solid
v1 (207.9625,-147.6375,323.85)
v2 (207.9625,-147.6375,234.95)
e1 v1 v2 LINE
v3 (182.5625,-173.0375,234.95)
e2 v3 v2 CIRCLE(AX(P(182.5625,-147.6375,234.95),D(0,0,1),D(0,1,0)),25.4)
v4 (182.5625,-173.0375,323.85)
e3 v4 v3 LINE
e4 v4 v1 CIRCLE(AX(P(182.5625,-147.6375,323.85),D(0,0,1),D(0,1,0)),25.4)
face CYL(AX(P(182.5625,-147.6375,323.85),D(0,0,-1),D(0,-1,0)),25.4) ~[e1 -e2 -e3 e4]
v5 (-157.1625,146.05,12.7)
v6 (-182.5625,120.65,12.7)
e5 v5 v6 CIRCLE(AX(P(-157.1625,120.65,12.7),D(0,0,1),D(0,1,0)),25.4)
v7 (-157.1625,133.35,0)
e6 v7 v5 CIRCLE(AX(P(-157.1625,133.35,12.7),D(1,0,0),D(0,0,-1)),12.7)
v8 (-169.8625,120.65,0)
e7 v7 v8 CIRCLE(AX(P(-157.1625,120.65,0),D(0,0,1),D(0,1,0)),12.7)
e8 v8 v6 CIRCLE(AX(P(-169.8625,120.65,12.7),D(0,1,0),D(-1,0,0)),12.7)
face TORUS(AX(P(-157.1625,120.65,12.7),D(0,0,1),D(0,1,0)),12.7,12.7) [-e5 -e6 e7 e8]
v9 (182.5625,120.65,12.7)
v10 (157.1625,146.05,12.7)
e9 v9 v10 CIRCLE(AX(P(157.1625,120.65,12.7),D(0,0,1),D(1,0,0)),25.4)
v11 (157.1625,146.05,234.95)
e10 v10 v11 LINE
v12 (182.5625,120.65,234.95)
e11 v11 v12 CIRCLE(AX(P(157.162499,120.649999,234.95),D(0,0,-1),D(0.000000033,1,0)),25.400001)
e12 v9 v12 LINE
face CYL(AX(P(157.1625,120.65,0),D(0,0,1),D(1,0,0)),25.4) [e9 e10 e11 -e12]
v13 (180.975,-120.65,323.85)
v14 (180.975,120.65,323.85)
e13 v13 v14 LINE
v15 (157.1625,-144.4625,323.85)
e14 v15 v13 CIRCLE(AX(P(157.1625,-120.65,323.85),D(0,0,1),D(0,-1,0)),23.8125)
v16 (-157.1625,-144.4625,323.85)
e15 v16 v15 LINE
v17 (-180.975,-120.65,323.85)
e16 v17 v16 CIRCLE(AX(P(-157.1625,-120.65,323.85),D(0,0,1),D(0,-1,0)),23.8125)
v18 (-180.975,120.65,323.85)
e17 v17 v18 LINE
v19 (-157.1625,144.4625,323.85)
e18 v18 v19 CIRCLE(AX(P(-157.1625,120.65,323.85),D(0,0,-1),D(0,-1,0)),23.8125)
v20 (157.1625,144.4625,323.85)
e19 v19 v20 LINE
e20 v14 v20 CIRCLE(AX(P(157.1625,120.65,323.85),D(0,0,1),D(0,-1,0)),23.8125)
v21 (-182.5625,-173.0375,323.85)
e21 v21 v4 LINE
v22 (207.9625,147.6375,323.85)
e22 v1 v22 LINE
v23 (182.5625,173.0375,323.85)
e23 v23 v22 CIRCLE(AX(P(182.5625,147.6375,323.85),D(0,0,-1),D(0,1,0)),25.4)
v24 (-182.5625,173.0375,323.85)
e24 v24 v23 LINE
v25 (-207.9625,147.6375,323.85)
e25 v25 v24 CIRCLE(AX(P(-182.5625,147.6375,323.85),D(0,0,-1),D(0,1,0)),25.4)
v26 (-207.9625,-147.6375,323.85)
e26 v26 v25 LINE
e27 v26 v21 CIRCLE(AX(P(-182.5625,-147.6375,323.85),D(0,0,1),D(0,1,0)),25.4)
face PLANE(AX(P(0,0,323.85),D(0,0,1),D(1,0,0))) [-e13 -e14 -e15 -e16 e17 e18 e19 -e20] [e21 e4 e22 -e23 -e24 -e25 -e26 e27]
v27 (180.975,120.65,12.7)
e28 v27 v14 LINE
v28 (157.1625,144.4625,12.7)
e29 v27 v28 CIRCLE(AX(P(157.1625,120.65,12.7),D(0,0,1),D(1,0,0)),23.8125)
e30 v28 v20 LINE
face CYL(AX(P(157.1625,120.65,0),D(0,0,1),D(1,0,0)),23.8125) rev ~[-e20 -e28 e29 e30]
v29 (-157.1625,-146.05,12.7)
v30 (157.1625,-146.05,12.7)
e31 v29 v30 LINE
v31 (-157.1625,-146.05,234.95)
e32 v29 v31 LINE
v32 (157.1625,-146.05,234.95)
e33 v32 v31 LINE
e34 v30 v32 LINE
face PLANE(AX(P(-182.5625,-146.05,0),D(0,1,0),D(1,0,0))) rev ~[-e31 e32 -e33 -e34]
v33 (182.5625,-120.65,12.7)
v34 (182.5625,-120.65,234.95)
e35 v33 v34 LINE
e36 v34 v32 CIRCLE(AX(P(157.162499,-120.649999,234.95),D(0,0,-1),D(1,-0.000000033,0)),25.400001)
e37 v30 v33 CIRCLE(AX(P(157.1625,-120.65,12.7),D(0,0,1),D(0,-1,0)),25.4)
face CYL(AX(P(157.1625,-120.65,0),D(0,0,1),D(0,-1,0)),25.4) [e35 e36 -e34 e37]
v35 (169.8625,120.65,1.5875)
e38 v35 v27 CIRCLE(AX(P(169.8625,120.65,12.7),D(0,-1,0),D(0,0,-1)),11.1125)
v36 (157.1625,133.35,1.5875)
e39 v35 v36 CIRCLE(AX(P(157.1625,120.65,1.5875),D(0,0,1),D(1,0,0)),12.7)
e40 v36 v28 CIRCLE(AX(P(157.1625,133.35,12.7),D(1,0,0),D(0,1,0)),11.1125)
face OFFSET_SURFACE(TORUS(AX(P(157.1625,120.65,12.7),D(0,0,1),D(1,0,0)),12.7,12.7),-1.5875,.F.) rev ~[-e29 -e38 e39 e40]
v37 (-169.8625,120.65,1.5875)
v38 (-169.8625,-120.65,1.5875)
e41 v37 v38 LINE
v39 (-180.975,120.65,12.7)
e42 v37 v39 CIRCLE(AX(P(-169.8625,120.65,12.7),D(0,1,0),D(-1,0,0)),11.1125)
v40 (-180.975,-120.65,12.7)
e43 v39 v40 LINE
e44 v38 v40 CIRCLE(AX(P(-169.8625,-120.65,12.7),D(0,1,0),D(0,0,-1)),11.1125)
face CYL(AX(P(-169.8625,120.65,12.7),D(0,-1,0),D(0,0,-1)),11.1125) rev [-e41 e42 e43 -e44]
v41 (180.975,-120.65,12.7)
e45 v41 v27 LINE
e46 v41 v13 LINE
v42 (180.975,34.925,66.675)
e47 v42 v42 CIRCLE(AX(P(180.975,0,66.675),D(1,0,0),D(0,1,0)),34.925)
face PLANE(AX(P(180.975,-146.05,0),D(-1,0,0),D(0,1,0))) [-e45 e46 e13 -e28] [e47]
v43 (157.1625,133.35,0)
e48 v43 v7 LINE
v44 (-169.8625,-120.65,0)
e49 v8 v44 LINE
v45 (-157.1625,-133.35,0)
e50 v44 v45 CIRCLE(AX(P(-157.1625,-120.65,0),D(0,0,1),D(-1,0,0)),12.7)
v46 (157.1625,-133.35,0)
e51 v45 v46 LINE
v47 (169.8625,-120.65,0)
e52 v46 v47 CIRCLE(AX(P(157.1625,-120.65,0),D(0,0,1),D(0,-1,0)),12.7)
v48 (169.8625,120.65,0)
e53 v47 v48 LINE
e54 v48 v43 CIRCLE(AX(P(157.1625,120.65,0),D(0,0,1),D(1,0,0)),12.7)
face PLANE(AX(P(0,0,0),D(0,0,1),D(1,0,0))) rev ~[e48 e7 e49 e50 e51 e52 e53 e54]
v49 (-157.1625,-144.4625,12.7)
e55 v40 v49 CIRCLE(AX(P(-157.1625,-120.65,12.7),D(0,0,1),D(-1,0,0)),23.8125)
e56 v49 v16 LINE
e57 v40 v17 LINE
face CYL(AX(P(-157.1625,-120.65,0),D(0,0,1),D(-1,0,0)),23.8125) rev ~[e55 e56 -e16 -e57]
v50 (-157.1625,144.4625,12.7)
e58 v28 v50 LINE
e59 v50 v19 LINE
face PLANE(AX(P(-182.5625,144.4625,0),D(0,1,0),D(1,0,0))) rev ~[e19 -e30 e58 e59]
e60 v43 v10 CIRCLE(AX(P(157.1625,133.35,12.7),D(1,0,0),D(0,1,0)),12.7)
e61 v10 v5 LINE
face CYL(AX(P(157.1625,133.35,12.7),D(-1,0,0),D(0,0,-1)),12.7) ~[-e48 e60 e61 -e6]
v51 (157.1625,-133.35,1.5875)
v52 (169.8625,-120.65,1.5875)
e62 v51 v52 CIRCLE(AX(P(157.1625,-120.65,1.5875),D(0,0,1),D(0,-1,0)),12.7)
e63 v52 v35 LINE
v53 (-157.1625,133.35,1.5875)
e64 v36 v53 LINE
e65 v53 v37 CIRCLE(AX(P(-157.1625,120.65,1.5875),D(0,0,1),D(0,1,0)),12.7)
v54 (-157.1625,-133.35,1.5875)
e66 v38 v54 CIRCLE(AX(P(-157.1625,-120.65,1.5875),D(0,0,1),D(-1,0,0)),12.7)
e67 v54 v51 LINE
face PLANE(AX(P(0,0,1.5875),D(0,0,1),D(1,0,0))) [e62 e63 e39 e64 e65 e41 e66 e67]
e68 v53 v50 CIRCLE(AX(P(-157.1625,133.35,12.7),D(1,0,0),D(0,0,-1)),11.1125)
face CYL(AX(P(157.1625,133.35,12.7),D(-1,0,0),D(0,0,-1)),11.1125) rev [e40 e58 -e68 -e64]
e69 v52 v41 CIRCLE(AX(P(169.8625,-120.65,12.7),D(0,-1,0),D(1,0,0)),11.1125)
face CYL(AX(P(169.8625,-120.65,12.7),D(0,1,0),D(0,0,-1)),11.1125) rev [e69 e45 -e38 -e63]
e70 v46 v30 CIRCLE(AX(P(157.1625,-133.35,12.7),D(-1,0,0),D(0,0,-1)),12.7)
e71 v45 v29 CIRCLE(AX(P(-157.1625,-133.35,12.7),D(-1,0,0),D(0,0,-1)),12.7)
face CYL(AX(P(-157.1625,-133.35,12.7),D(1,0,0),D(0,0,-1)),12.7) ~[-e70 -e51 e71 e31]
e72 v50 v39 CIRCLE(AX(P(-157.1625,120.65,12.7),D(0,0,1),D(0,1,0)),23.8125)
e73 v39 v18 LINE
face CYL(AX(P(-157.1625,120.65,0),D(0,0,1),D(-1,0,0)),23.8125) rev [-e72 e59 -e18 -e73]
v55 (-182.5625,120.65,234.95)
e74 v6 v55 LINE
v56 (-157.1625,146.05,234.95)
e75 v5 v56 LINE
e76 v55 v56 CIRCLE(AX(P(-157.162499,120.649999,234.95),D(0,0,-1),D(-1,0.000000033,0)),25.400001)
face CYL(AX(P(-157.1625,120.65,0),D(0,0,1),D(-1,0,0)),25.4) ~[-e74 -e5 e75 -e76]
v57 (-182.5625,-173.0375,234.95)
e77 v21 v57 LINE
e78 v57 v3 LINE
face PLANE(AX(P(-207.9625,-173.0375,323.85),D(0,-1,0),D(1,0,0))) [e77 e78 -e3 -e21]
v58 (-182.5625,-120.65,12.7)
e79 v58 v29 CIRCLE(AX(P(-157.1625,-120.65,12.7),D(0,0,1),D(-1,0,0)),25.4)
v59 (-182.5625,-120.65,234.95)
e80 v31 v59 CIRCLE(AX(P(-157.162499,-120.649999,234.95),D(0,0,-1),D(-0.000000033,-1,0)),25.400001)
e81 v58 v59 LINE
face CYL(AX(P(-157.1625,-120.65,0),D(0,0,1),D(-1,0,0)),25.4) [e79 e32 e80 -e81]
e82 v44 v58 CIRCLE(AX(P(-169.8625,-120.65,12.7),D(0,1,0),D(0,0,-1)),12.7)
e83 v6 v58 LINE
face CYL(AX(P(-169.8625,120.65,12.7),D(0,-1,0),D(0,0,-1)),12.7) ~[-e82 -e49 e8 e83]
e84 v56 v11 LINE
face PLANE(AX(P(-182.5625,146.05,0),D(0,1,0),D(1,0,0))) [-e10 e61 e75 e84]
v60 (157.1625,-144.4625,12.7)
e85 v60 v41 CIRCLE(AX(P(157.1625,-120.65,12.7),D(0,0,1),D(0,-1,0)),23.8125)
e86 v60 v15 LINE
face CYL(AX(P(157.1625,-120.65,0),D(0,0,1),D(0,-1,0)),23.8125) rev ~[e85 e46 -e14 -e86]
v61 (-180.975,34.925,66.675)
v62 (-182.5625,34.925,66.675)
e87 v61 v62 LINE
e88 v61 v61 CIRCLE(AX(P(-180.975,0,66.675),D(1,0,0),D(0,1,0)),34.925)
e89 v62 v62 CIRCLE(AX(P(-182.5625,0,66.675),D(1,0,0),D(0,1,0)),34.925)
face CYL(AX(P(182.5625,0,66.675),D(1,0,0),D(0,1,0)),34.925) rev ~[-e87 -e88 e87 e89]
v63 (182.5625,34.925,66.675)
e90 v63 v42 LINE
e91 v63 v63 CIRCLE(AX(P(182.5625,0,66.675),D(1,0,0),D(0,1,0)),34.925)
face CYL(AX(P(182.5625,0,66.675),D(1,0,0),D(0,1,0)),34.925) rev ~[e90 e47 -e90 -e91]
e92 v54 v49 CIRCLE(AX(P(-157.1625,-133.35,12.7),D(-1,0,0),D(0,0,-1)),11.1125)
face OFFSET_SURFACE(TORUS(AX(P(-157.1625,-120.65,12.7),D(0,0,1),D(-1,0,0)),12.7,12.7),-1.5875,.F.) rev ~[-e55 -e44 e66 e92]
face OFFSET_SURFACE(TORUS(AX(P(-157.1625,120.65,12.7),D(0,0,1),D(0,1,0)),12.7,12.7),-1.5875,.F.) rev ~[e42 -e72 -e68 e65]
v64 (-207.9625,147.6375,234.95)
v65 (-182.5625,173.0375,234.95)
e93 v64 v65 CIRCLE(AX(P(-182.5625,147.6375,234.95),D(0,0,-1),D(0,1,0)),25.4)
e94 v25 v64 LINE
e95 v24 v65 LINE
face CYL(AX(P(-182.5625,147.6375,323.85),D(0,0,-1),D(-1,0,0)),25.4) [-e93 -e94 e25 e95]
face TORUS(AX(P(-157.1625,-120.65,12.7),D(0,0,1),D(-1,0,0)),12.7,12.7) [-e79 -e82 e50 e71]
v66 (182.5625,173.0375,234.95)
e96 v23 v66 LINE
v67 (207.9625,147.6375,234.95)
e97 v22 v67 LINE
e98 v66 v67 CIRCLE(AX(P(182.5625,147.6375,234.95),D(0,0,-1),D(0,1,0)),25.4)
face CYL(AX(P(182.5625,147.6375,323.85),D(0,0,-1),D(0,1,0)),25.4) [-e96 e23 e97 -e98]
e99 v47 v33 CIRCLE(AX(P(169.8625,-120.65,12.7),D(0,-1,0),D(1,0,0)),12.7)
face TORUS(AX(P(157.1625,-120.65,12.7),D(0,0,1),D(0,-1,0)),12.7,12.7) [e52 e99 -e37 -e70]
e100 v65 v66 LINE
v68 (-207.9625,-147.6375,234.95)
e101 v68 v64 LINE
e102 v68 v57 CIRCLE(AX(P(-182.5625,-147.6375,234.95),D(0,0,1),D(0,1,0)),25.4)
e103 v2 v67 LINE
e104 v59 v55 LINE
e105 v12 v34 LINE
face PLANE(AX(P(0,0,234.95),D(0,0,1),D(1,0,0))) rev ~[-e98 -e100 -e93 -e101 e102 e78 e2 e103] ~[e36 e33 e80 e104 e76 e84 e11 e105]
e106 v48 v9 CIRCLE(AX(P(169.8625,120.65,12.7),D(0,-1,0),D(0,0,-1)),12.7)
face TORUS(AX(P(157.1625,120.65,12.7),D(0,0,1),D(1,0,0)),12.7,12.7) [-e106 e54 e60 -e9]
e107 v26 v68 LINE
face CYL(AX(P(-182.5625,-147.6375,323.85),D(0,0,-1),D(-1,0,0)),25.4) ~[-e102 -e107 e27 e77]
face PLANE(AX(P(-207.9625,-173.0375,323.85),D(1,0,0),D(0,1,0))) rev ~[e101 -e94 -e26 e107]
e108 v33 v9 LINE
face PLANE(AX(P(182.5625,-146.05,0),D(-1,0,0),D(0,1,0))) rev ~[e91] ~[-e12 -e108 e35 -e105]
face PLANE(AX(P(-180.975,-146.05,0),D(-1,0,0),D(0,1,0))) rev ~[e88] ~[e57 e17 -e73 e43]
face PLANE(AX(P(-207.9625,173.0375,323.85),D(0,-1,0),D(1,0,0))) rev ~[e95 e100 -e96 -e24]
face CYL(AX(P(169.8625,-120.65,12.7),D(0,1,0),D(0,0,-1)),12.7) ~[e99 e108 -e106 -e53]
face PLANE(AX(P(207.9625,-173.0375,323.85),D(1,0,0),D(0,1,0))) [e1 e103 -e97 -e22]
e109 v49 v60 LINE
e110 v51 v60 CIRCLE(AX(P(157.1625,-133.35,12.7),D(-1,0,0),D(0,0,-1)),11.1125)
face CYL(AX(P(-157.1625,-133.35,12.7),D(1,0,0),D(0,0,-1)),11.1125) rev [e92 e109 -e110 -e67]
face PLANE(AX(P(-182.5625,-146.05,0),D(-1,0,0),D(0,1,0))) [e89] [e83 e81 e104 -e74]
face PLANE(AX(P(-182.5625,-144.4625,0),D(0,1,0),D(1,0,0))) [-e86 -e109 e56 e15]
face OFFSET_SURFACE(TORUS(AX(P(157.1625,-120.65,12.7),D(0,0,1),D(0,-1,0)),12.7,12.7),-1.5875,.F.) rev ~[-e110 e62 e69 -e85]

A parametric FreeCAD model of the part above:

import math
import FreeCAD as App
import Part
import Sketcher
from FreeCAD import Vector
Q = App.Units.Quantity


def edges_at(feature, points):
    """Names of the edges that pass closest to the given points."""
    edges = feature.Shape.Edges
    near = lambda p: min(range(len(edges)), key=lambda i: edges[i].distToShape(Part.Vertex(*p))[0])
    return sorted({f"Edge{near(p) + 1}" for p in points})


def faces_at(feature, points):
    """Names of the faces that lie closest to the given points."""
    faces = feature.Shape.Faces
    near = lambda p: min(range(len(faces)), key=lambda i: faces[i].distToShape(Part.Vertex(*p))[0])
    return sorted({f"Face{near(p) + 1}" for p in points})


def add_polygon(sketch, points):
    """Adds a closed chain of lines whose ends are joined by coincident constraints."""
    first, n = sketch.GeometryCount, len(points)
    for a, b in zip(points, points[1:] + points[:1]):
        sketch.addGeometry(Part.LineSegment(App.Vector(*a, 0), App.Vector(*b, 0)), False)
    for i in range(n):
        sketch.addConstraint(Sketcher.Constraint("Coincident", first + i, 2, first + (i + 1) % n, 1))

doc = App.newDocument("Part")
body = doc.addObject("PartDesign::Body", "Body")

# Sketch on XY plane
sketch1 = body.newObject("Sketcher::SketchObject", "Sketch")
sketch1.AttachmentSupport = (doc.getObject("XY_Plane"), [""])
sketch1.MapMode = "FlatFace"
add_polygon(sketch1, [(-183, 146), (-183, -146), (183, -146), (183, 146)])  # lines 0-3
sketch1.addConstraint([
    Sketcher.Constraint("Vertical", 0),
    Sketcher.Constraint("Horizontal", 1),
    Sketcher.Constraint("Vertical", 2),
    Sketcher.Constraint("Horizontal", 3),
    Sketcher.Constraint("Symmetric", 0, 2, 2, 2, -1, 1),
    Sketcher.Constraint("DistanceY", 0, 2, 0, 1, Q("11.5 in")),
    Sketcher.Constraint("DistanceX", 1, 1, 1, 2, Q("14.375 in")),
])
pad1 = body.newObject("PartDesign::Pad", "Pad")
pad1.Profile = sketch1
pad1.Length = Q("12.75 in")
doc.recompute()

fillet = body.newObject("PartDesign::Fillet", "Fillet")
fillet.Base = (pad1, edges_at(pad1, [
    (-182.562, -146.05, 161.925),
    (182.562, -146.05, 161.925),
    (182.562, 146.05, 161.925),
    (-182.562, 146.05, 161.925),
]))
fillet.Radius = Q("1 in")
doc.recompute()

fillet2 = body.newObject("PartDesign::Fillet", "Fillet001")
fillet2.Base = (fillet, edges_at(fillet, [(0, -146.05, 0)]))
fillet2.Radius = Q("0.5 in")
doc.recompute()

thickness = body.newObject("PartDesign::Thickness", "Thickness")
thickness.Base = (fillet2, faces_at(fillet2, [(0, 0, 323.85)]))
thickness.Value = Q("0.0625 in")
thickness.Reversed = True
thickness.Join = "Arc"

# Sketch on YZ plane
sketch2 = body.newObject("Sketcher::SketchObject", "Sketch001")
sketch2.AttachmentSupport = (doc.getObject("YZ_Plane"), [""])
sketch2.MapMode = "FlatFace"
sketch2.AttachmentOffset = App.Placement(Vector(0, 0, 7.1875 * 25.4), App.Rotation())
sketch2.addGeometry(Part.Circle(Vector(0, 67, 0), Vector(0, 0, 1), 35), False)
sketch2.addConstraint([
    Sketcher.Constraint("PointOnObject", 0, 3, -2),
    Sketcher.Constraint("Diameter", 0, Q("2.75 in")),
    Sketcher.Constraint("DistanceY", -1, 1, 0, 3, Q("2.625 in")),
])
pocket1 = body.newObject("PartDesign::Pocket", "Pocket")
pocket1.Profile = sketch2
pocket1.Type = "ThroughAll"

# Sketch on XY plane
sketch3 = body.newObject("Sketcher::SketchObject", "Sketch002")
sketch3.AttachmentSupport = (doc.getObject("XY_Plane"), [""])
sketch3.MapMode = "FlatFace"
sketch3.AttachmentOffset = App.Placement(Vector(0, 0, 12.75 * 25.4), App.Rotation())
add_polygon(sketch3, [(-208, 173), (-208, -173), (208, -173), (208, 173)])  # lines 0-3
sketch3.addGeometry(Part.ArcOfCircle(Part.Circle(Vector(-157, -121, 0), Vector(0, 0, 1), 25), math.radians(-180), math.radians(-90)), False)  # 4
sketch3.addGeometry(Part.LineSegment(Vector(-183, -121, 0), Vector(-183, 121, 0)), False)  # 5
sketch3.addGeometry(Part.ArcOfCircle(Part.Circle(Vector(-157, 121, 0), Vector(0, 0, 1), 25), math.radians(90), math.radians(180)), False)  # 6
sketch3.addGeometry(Part.LineSegment(Vector(-157, 146, 0), Vector(157, 146, 0)), False)  # 7
sketch3.addGeometry(Part.ArcOfCircle(Part.Circle(Vector(157, 121, 0), Vector(0, 0, 1), 25), math.radians(0), math.radians(90)), False)  # 8
sketch3.addGeometry(Part.LineSegment(Vector(183, 121, 0), Vector(183, -121, 0)), False)  # 9
sketch3.addGeometry(Part.ArcOfCircle(Part.Circle(Vector(157, -121, 0), Vector(0, 0, 1), 25), math.radians(-90), math.radians(0)), False)  # 10
sketch3.addGeometry(Part.LineSegment(Vector(157, -146, 0), Vector(-157, -146, 0)), False)  # 11
sketch3.addConstraint([
    Sketcher.Constraint("Tangent", 4, 1, 5, 1),
    Sketcher.Constraint("Tangent", 5, 2, 6, 2),
    Sketcher.Constraint("Tangent", 6, 1, 7, 1),
    Sketcher.Constraint("Tangent", 7, 2, 8, 2),
    Sketcher.Constraint("Tangent", 8, 1, 9, 1),
    Sketcher.Constraint("Tangent", 9, 2, 10, 2),
    Sketcher.Constraint("Tangent", 10, 1, 11, 1),
    Sketcher.Constraint("Tangent", 11, 2, 4, 2),
    Sketcher.Constraint("Vertical", 0),
    Sketcher.Constraint("Horizontal", 1),
    Sketcher.Constraint("Vertical", 2),
    Sketcher.Constraint("Horizontal", 3),
    Sketcher.Constraint("Vertical", 5),
    Sketcher.Constraint("Horizontal", 7),
    Sketcher.Constraint("Vertical", 9),
    Sketcher.Constraint("Horizontal", 11),
    Sketcher.Constraint("Equal", 4, 6),
    Sketcher.Constraint("Equal", 6, 8),
    Sketcher.Constraint("Equal", 8, 10),
    Sketcher.Constraint("Symmetric", 4, 3, 8, 3, -1, 1),
    Sketcher.Constraint("Symmetric", 0, 2, 2, 2, -1, 1),
    Sketcher.Constraint("Radius", 4, Q("1 in")),
    Sketcher.Constraint("DistanceY", 5, 1, 5, 2, Q("9.5 in")),
    Sketcher.Constraint("DistanceX", 0, 2, 4, 3, Q("2 in")),
    Sketcher.Constraint("DistanceX", 1, 1, 1, 2, Q("16.375 in")),
    Sketcher.Constraint("DistanceY", 0, 2, 0, 1, Q("13.625 in")),
])
pad2 = body.newObject("PartDesign::Pad", "Pad001")
pad2.Profile = sketch3
pad2.Length = Q("3.5 in")
pad2.Reversed = True
doc.recompute()

fillet3 = body.newObject("PartDesign::Fillet", "Fillet002")
fillet3.Base = (pad2, edges_at(pad2, [
    (-207.963, -173.037, 279.4),
    (207.963, -173.037, 279.4),
    (207.963, 173.037, 279.4),
    (-207.963, 173.037, 279.4),
]))
fillet3.Radius = Q("1 in")

doc.recompute()
